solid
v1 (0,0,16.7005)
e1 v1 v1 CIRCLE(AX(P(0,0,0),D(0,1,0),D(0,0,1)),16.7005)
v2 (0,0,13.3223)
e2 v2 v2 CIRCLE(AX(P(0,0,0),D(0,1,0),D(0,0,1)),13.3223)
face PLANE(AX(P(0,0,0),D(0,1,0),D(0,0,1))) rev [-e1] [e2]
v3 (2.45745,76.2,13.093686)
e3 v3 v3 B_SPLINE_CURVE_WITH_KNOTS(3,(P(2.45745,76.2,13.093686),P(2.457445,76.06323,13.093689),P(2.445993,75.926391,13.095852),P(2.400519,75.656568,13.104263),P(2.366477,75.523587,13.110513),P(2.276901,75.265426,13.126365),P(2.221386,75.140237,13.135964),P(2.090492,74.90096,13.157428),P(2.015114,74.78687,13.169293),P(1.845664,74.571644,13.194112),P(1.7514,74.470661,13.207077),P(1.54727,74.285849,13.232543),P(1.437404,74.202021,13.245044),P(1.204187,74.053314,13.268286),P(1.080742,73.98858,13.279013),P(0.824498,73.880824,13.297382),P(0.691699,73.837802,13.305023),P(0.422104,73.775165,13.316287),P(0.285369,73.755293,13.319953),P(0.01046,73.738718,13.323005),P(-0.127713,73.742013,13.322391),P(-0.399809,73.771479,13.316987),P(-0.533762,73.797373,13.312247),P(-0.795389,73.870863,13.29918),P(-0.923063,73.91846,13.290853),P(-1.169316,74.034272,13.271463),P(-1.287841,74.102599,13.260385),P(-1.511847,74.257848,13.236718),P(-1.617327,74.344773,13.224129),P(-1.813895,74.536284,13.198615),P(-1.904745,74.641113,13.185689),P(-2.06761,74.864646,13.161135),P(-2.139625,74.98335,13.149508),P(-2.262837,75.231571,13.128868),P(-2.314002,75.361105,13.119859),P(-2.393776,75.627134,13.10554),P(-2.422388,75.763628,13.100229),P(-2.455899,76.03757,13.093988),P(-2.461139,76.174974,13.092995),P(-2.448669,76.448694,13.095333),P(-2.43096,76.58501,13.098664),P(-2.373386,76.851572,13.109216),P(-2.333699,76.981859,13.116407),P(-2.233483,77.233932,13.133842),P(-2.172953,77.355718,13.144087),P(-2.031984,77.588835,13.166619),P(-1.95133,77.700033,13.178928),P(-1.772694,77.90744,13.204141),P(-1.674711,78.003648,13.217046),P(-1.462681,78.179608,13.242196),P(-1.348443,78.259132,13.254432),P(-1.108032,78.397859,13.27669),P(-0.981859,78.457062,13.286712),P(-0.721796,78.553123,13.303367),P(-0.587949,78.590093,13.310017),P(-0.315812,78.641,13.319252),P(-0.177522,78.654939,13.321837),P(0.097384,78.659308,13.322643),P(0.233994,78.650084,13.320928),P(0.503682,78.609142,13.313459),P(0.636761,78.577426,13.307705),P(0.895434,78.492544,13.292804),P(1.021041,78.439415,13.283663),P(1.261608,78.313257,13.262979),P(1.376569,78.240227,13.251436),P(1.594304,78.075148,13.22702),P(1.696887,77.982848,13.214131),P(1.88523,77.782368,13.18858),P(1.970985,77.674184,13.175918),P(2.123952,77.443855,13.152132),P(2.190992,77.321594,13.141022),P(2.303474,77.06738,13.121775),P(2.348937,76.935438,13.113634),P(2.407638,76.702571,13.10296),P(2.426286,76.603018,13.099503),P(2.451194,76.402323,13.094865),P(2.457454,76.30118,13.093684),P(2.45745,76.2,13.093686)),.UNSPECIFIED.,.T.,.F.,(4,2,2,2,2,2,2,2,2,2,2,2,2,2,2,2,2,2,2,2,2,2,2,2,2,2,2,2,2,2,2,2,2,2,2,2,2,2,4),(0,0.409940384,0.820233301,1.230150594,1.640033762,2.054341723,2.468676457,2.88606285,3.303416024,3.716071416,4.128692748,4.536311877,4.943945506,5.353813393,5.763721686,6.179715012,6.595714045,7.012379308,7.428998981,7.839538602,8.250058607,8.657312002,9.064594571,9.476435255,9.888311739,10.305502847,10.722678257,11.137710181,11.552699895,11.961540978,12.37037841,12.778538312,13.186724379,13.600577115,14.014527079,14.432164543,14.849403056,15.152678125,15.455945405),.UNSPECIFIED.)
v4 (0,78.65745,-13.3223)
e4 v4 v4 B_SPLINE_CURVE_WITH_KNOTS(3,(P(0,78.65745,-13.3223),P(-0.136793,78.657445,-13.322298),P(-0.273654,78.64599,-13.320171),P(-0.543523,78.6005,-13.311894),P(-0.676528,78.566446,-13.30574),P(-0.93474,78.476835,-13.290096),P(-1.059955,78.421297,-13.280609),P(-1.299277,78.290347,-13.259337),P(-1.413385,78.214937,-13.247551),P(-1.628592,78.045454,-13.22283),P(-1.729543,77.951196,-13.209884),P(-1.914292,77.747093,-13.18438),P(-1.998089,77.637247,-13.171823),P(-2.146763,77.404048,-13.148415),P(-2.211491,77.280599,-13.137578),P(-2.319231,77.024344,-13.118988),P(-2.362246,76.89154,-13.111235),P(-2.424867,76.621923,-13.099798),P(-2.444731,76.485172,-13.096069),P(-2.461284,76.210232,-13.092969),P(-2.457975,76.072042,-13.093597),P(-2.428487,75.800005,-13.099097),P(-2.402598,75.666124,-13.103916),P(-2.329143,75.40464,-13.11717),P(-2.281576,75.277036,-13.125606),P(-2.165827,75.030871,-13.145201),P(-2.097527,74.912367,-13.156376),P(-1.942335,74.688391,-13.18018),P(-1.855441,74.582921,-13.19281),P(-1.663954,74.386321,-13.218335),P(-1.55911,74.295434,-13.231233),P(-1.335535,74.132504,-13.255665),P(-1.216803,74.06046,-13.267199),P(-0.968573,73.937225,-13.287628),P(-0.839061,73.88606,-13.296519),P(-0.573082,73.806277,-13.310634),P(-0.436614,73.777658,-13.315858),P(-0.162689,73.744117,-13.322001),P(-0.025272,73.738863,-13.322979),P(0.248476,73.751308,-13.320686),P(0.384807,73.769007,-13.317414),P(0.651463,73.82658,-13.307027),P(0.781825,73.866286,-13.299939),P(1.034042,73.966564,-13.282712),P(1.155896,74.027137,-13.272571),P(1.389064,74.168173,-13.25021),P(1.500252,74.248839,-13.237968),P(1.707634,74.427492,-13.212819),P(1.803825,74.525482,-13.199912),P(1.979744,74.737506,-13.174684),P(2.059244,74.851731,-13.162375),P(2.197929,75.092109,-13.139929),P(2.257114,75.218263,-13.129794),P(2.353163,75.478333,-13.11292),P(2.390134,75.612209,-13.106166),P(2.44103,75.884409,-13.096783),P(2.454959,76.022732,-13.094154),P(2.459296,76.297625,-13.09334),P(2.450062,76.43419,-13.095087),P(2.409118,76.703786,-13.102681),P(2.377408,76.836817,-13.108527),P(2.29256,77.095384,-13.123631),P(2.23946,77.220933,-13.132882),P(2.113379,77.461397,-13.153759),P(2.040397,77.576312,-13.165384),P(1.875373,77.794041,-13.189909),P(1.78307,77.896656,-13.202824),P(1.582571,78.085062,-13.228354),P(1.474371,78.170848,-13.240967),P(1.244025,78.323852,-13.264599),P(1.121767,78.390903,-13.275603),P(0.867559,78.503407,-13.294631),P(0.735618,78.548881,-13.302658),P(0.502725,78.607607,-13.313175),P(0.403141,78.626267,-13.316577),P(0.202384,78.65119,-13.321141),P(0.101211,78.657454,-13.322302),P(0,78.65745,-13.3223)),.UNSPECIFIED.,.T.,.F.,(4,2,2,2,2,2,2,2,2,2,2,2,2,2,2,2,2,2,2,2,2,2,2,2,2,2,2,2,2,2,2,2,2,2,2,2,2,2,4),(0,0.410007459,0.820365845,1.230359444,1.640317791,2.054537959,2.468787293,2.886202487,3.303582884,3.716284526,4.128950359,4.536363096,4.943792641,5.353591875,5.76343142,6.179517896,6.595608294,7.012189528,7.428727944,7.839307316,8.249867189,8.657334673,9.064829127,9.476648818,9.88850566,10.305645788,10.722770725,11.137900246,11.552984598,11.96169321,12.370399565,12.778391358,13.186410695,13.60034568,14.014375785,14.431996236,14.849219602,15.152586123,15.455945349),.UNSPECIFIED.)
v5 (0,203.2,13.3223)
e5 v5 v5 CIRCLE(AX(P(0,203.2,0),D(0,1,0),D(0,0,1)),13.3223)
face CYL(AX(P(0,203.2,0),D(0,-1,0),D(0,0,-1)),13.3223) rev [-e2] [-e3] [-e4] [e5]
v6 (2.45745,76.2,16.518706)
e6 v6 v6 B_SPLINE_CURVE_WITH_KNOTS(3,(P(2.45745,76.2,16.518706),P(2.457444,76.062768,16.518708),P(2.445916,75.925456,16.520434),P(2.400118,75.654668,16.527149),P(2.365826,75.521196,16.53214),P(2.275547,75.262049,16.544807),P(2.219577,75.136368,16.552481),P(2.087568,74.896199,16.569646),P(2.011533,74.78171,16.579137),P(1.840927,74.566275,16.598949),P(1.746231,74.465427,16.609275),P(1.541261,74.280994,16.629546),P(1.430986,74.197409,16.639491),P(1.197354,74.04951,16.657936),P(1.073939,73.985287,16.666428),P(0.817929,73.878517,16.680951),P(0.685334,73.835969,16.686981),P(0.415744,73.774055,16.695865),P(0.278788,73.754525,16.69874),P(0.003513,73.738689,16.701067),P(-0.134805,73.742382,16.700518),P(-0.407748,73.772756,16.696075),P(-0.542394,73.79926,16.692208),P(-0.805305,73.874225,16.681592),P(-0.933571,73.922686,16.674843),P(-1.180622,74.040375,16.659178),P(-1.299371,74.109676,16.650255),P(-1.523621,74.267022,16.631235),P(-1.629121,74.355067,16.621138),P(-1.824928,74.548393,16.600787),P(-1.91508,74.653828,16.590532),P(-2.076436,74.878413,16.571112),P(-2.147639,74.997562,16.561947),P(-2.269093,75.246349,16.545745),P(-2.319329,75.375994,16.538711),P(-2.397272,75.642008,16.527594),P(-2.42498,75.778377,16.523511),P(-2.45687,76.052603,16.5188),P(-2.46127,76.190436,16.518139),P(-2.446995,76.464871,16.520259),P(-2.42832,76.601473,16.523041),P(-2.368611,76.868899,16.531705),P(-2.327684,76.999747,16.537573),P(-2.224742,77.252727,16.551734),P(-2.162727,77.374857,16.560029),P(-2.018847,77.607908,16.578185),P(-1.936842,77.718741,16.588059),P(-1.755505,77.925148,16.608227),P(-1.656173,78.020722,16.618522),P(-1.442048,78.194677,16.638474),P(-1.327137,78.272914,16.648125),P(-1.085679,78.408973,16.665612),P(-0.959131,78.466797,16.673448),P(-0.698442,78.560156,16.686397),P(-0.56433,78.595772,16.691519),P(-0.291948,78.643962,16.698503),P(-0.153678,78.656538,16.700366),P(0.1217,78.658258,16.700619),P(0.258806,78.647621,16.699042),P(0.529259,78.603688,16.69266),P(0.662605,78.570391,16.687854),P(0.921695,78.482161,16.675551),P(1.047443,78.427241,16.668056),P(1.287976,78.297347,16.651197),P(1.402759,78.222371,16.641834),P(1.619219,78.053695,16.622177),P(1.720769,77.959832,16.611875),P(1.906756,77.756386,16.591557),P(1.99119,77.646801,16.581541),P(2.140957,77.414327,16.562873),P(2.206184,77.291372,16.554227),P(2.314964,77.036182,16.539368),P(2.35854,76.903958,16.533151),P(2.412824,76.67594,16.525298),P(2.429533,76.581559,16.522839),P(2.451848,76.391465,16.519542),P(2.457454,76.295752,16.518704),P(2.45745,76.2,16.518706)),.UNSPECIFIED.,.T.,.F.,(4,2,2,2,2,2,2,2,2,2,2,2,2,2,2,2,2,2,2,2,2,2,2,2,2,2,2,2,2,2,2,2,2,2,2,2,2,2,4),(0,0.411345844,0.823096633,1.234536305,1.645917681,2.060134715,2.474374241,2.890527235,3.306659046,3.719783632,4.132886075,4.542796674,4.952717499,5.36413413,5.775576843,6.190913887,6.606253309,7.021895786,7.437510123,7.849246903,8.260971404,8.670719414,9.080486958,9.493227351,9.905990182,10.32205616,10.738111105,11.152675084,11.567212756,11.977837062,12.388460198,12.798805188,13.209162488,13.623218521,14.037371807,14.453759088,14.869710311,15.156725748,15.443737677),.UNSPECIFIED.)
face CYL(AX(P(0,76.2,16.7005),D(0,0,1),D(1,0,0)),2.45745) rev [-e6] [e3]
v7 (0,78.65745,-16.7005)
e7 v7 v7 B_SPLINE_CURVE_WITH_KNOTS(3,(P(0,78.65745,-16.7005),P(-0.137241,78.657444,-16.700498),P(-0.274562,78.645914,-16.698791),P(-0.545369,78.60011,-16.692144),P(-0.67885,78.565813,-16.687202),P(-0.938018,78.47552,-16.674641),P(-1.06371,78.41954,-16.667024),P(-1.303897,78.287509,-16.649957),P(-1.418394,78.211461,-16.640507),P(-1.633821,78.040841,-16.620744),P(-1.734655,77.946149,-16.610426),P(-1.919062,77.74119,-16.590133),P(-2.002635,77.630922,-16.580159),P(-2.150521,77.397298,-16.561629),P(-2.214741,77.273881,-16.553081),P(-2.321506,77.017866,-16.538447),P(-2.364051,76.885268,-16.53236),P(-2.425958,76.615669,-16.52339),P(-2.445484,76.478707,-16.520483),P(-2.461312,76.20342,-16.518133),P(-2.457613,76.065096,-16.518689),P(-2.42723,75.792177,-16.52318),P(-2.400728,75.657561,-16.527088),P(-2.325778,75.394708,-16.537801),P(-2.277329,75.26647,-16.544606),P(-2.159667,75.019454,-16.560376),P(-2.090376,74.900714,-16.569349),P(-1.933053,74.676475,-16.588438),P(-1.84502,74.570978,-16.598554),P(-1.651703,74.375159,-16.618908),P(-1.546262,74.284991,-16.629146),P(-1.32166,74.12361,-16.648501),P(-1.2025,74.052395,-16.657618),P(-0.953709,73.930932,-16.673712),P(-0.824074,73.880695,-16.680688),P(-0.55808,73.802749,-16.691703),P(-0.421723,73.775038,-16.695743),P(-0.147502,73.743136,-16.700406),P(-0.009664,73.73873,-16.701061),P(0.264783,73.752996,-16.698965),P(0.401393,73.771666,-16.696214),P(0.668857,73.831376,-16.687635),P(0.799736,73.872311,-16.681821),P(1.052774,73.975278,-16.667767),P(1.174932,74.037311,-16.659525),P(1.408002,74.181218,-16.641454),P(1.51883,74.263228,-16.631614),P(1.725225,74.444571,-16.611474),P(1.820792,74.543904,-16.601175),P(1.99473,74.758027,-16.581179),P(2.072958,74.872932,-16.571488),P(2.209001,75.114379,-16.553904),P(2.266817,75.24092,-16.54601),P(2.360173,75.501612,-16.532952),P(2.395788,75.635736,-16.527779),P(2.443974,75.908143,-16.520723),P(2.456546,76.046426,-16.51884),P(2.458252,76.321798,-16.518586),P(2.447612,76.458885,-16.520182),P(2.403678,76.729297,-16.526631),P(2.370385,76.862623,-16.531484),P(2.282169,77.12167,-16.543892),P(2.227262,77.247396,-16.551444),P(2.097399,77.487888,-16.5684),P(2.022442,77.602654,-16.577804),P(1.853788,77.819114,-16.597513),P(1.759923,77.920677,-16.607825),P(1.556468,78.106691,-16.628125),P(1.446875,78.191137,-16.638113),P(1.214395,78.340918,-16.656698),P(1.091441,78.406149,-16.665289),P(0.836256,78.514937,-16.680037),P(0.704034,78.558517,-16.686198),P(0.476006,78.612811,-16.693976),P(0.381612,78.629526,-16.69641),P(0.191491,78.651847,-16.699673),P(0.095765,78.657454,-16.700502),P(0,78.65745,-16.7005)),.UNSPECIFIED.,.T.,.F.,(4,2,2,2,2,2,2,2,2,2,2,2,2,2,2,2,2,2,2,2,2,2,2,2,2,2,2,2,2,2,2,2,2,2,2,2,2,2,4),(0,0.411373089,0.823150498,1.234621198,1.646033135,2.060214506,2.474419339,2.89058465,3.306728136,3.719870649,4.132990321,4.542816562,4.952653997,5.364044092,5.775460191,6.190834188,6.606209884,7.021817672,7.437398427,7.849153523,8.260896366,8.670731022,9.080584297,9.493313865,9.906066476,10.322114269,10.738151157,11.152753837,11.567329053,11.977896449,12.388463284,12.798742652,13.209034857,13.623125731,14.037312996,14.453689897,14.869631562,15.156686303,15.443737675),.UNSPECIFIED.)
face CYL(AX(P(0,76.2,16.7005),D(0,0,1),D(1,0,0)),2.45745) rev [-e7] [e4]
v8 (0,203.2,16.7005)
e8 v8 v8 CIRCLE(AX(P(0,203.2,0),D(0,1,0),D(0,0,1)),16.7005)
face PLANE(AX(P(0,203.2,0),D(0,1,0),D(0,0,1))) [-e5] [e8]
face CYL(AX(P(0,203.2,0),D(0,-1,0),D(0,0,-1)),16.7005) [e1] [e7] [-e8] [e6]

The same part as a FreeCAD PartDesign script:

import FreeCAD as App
import Part
import Sketcher

V = App.Vector
Q = App.Units.Quantity

doc = App.newDocument("Part")
body = doc.addObject("PartDesign::Body", "Body")

sketch1 = doc.addObject("Sketcher::SketchObject", "Sketch")
body.addObject(sketch1)
sketch1.AttachmentSupport = (doc.XZ_Plane, [""])
sketch1.MapMode = "FlatFace"
sketch1.addGeometry([
    Part.Circle(V(0, 0, 0), V(0, 0, 1), 17),
    Part.Circle(V(0, 0, 0), V(0, 0, 1), 13),
], False)
sketch1.addConstraint([
    Sketcher.Constraint("Coincident", 0, 3, -1, 1),
    Sketcher.Constraint("Coincident", 1, 3, -1, 1),
    Sketcher.Constraint("Diameter", 0, Q("1.315 in")),
    Sketcher.Constraint("Diameter", 1, Q("1.049 in")),
])
pad1 = doc.addObject("PartDesign::Pad", "Pad")
body.addObject(pad1)
pad1.Profile = sketch1
pad1.Length = Q("8 in")
pad1.Reversed = True

sketch2 = doc.addObject("Sketcher::SketchObject", "Sketch001")
body.addObject(sketch2)
sketch2.AttachmentSupport = (doc.XY_Plane, [""])
sketch2.MapMode = "FlatFace"
sketch2.AttachmentOffset = App.Placement(V(0, 0, 0.6575 * 25.4), App.Rotation())
sketch2.addGeometry(Part.Circle(V(0, 76.2, 0), V(0, 0, 1), 2.5), False)
sketch2.addConstraint([
    Sketcher.Constraint("PointOnObject", 0, 3, -2),
    Sketcher.Constraint("DistanceY", -1, 1, 0, 3, Q("3 in")),
    Sketcher.Constraint("Diameter", 0, Q("0.1935 in")),
])
doc.recompute()
hole = doc.addObject("PartDesign::Hole", "Hole")
body.addObject(hole)
hole.Profile = sketch2
hole.ThreadType = "None"
hole.Diameter = Q("0.1935 in")
hole.DepthType = "ThroughAll"

doc.recompute()
